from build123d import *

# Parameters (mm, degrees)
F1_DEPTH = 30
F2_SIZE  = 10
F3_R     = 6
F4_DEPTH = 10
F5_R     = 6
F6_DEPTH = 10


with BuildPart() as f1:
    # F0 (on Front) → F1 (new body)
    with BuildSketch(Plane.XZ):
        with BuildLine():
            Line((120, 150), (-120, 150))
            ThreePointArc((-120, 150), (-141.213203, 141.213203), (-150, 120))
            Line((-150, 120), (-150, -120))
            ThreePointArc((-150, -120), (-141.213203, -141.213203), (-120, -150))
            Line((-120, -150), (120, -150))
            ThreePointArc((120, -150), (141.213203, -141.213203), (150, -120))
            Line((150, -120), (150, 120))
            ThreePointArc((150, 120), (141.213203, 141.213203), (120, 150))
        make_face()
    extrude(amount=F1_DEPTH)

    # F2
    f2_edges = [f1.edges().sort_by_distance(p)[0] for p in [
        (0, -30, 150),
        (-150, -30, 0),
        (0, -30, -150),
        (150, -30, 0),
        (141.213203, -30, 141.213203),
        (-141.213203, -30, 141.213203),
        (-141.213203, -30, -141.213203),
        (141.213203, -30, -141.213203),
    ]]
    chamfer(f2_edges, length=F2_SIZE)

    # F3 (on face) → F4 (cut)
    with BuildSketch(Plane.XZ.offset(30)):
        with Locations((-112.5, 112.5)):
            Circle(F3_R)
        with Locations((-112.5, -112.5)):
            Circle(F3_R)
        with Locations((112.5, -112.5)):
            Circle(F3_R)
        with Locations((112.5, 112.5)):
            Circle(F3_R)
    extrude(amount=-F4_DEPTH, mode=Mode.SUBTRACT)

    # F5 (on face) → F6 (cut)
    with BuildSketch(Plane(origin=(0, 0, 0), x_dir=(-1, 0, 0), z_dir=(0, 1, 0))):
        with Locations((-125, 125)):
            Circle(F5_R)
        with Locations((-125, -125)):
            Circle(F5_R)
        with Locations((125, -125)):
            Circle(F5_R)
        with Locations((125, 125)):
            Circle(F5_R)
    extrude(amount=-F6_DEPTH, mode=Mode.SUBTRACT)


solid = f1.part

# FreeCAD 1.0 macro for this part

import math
import FreeCAD as App
import Part
import Sketcher
Q = App.Units.Quantity


def edges_at(feature, points):
    """Names of the edges that pass closest to the given points."""
    edges = feature.Shape.Edges
    near = lambda p: min(range(len(edges)), key=lambda i: edges[i].distToShape(Part.Vertex(*p))[0])
    return sorted({f"Edge{near(p) + 1}" for p in points})

doc = App.newDocument("Part")
body = doc.addObject("PartDesign::Body", "Body")

# Sketch on XZ plane
sketch1 = body.newObject("Sketcher::SketchObject", "Sketch")
sketch1.AttachmentSupport = (doc.getObject("XZ_Plane"), [""])
sketch1.MapMode = "FlatFace"
sketch1.addGeometry([
    Part.LineSegment(App.Vector(120, 150, 0), App.Vector(-120, 150, 0)),  # 0
    Part.ArcOfCircle(Part.Circle(App.Vector(-120, 120, 0), App.Vector(0, 0, 1), 30), math.radians(90), math.radians(180)),  # 1
    Part.LineSegment(App.Vector(-150, 120, 0), App.Vector(-150, -120, 0)),  # 2
    Part.ArcOfCircle(Part.Circle(App.Vector(-120, -120, 0), App.Vector(0, 0, 1), 30), math.radians(-180), math.radians(-90)),  # 3
    Part.LineSegment(App.Vector(-120, -150, 0), App.Vector(120, -150, 0)),  # 4
    Part.ArcOfCircle(Part.Circle(App.Vector(120, -120, 0), App.Vector(0, 0, 1), 30), math.radians(-90), math.radians(0)),  # 5
    Part.LineSegment(App.Vector(150, -120, 0), App.Vector(150, 120, 0)),  # 6
    Part.ArcOfCircle(Part.Circle(App.Vector(120, 120, 0), App.Vector(0, 0, 1), 30), math.radians(0), math.radians(90)),  # 7
], False)
sketch1.addConstraint([
    Sketcher.Constraint("Tangent", 0, 2, 1, 1),
    Sketcher.Constraint("Tangent", 1, 2, 2, 1),
    Sketcher.Constraint("Tangent", 2, 2, 3, 1),
    Sketcher.Constraint("Tangent", 3, 2, 4, 1),
    Sketcher.Constraint("Tangent", 4, 2, 5, 1),
    Sketcher.Constraint("Tangent", 5, 2, 6, 1),
    Sketcher.Constraint("Tangent", 6, 2, 7, 1),
    Sketcher.Constraint("Tangent", 7, 2, 0, 1),
    Sketcher.Constraint("Horizontal", 0),
    Sketcher.Constraint("Vertical", 2),
    Sketcher.Constraint("Horizontal", 4),
    Sketcher.Constraint("Vertical", 6),
    Sketcher.Constraint("Equal", 1, 3),
    Sketcher.Constraint("Equal", 3, 5),
    Sketcher.Constraint("Equal", 5, 7),
    Sketcher.Constraint("Symmetric", 1, 3, 5, 3, -1, 1),
    Sketcher.Constraint("Equal", 4, 2),
    Sketcher.Constraint("Radius", 1, Q("30.000001 mm")),
    Sketcher.Constraint("DistanceX", 0, 2, 0, 1, Q("240 mm")),
])
pad1 = body.newObject("PartDesign::Pad", "Pad")
pad1.Profile = sketch1
pad1.Length = 30
doc.recompute()

chamfer = body.newObject("PartDesign::Chamfer", "Chamfer")
chamfer.Base = (pad1, edges_at(pad1, [
    (0, -30, 150),
    (-150, -30, 0),
    (0, -30, -150),
    (150, -30, 0),
    (141.213, -30, 141.213),
    (-141.213, -30, 141.213),
    (-141.213, -30, -141.213),
    (141.213, -30, -141.213),
]))
chamfer.Size = 10

# Sketch on XZ plane
sketch2 = body.newObject("Sketcher::SketchObject", "Sketch001")
sketch2.AttachmentSupport = (doc.getObject("XZ_Plane"), [""])
sketch2.MapMode = "FlatFace"
sketch2.AttachmentOffset = App.Placement(App.Vector(0, 0, 30), App.Rotation())
sketch2.addGeometry([
    Part.Circle(App.Vector(-112, 112, 0), App.Vector(0, 0, 1), 6),
    Part.Circle(App.Vector(-112, -112, 0), App.Vector(0, 0, 1), 6),
    Part.Circle(App.Vector(112, -112, 0), App.Vector(0, 0, 1), 6),
    Part.Circle(App.Vector(112, 112, 0), App.Vector(0, 0, 1), 6),
], False)
sketch2.addConstraint([
    Sketcher.Constraint("Equal", 0, 1),
    Sketcher.Constraint("Equal", 1, 2),
    Sketcher.Constraint("Equal", 2, 3),
    Sketcher.Constraint("Symmetric", 0, 3, 2, 3, -1, 1),
    Sketcher.Constraint("Symmetric", 1, 3, 3, 3, -1, 1),
    Sketcher.Constraint("Symmetric", 1, 3, 2, 3, -2),
    Sketcher.Constraint("Diameter", 0, Q("12 mm")),
    Sketcher.Constraint("DistanceY", 1, 3, 0, 3, Q("225 mm")),
    Sketcher.Constraint("DistanceX", 1, 3, 2, 3, Q("225 mm")),
])
pocket1 = body.newObject("PartDesign::Pocket", "Pocket")
pocket1.Profile = sketch2
pocket1.Length = 10

# Sketch on XZ plane
sketch3 = body.newObject("Sketcher::SketchObject", "Sketch002")
sketch3.AttachmentSupport = (doc.getObject("XZ_Plane"), [""])
sketch3.MapMode = "FlatFace"
sketch3.addGeometry([
    Part.Circle(App.Vector(125, 125, 0), App.Vector(0, 0, 1), 6),
    Part.Circle(App.Vector(125, -125, 0), App.Vector(0, 0, 1), 6),
    Part.Circle(App.Vector(-125, -125, 0), App.Vector(0, 0, 1), 6),
    Part.Circle(App.Vector(-125, 125, 0), App.Vector(0, 0, 1), 6),
], False)
sketch3.addConstraint([
    Sketcher.Constraint("Equal", 0, 1),
    Sketcher.Constraint("Equal", 1, 2),
    Sketcher.Constraint("Equal", 2, 3),
    Sketcher.Constraint("Symmetric", 0, 3, 2, 3, -1, 1),
    Sketcher.Constraint("Symmetric", 1, 3, 3, 3, -1, 1),
    Sketcher.Constraint("Symmetric", 1, 3, 2, 3, -2),
    Sketcher.Constraint("Diameter", 0, Q("12 mm")),
    Sketcher.Constraint("DistanceX", -1, 1, 0, 3, Q("125 mm")),
    Sketcher.Constraint("DistanceY", -1, 1, 0, 3, Q("125 mm")),
])
pocket2 = body.newObject("PartDesign::Pocket", "Pocket001")
pocket2.Profile = sketch3
pocket2.Length = 10
pocket2.Reversed = True

doc.recompute()
